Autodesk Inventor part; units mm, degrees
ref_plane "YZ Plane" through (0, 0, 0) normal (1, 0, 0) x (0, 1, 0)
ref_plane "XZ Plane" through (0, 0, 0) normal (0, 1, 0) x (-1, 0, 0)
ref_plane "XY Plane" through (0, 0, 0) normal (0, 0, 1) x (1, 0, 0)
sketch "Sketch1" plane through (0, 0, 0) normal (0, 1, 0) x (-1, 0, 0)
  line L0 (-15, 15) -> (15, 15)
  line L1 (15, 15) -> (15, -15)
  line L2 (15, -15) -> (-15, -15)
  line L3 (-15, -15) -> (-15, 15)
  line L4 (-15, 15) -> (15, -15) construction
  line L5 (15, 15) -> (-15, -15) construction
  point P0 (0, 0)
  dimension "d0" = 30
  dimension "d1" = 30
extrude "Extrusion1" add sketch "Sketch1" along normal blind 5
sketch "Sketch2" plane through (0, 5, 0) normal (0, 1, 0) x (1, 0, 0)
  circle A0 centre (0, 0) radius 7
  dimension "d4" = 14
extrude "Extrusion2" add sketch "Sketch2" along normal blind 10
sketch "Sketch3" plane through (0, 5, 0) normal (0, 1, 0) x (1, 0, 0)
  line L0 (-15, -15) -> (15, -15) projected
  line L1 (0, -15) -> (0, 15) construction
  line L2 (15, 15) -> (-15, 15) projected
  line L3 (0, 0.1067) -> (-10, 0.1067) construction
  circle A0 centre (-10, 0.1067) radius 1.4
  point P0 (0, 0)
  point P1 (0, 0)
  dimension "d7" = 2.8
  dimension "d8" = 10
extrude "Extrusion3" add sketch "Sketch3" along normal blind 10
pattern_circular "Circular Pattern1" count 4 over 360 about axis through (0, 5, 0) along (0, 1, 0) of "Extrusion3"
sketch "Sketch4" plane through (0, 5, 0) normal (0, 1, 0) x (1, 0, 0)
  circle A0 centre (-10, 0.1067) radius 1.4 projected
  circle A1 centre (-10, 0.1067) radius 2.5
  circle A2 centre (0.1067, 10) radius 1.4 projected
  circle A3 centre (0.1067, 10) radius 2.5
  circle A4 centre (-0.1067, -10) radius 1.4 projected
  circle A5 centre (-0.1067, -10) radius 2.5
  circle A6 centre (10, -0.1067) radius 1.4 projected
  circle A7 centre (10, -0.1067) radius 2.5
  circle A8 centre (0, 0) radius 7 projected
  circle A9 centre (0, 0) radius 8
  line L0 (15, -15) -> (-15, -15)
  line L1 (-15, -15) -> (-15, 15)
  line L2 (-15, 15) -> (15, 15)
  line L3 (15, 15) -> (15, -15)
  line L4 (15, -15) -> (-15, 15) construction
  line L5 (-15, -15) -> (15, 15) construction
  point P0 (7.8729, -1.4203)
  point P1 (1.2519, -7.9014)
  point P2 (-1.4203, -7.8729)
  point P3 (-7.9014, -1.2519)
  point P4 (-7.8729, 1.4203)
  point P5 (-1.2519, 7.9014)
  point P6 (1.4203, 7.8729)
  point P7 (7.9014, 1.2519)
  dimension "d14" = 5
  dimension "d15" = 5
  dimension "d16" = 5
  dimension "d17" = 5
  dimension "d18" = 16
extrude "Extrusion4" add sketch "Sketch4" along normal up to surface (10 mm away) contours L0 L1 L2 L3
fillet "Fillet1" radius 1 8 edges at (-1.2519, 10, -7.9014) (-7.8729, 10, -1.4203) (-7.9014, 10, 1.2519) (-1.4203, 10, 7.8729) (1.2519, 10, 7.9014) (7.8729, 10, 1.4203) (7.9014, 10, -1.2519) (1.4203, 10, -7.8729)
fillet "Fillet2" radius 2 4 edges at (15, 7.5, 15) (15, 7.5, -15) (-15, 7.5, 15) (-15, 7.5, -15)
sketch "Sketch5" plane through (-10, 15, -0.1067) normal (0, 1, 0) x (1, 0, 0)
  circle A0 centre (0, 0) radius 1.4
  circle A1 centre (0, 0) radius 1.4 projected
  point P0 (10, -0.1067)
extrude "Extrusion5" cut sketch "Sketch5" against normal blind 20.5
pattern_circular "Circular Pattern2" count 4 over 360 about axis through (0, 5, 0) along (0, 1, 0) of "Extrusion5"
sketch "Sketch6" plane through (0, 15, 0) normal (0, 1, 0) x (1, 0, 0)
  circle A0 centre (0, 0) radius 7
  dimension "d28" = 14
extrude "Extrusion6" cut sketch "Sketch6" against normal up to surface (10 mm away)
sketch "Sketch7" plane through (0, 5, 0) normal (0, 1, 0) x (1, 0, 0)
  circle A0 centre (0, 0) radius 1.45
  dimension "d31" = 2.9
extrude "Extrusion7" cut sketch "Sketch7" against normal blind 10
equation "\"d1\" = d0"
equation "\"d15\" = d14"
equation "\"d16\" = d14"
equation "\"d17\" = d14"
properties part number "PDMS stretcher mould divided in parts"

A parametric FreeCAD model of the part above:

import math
import FreeCAD as App
import Part
import Sketcher
Q = App.Units.Quantity


def edges_at(feature, points):
    """Names of the edges that pass closest to the given points."""
    edges = feature.Shape.Edges
    near = lambda p: min(range(len(edges)), key=lambda i: edges[i].distToShape(Part.Vertex(*p))[0])
    return sorted({f"Edge{near(p) + 1}" for p in points})


def add_polygon(sketch, points):
    """Adds a closed chain of lines whose ends are joined by coincident constraints."""
    first, n = sketch.GeometryCount, len(points)
    for a, b in zip(points, points[1:] + points[:1]):
        sketch.addGeometry(Part.LineSegment(App.Vector(*a, 0), App.Vector(*b, 0)), False)
    for i in range(n):
        sketch.addConstraint(Sketcher.Constraint("Coincident", first + i, 2, first + (i + 1) % n, 1))

doc = App.newDocument("Part")
body = doc.addObject("PartDesign::Body", "Body")

# Sketch on XZ plane
sketch1 = doc.addObject("Sketcher::SketchObject", "Sketch")
body.addObject(sketch1)
sketch1.AttachmentSupport = (doc.XZ_Plane, [""])
sketch1.MapMode = "FlatFace"
add_polygon(sketch1, [(-15, 15), (15, 15), (15, -15), (-15, -15)])  # lines 0-3
sketch1.addConstraint([
    Sketcher.Constraint("Horizontal", 0),
    Sketcher.Constraint("Vertical", 1),
    Sketcher.Constraint("Horizontal", 2),
    Sketcher.Constraint("Vertical", 3),
    Sketcher.Constraint("Symmetric", 0, 2, 2, 2, -1, 1),
    Sketcher.Constraint("Equal", 2, 1),
    Sketcher.Constraint("DistanceX", 0, 1, 0, 2, Q("30 mm")),
])
pad1 = doc.addObject("PartDesign::Pad", "Pad")
body.addObject(pad1)
pad1.Profile = sketch1
pad1.Length = 5
pad1.Reversed = True

# Sketch on XZ plane
sketch2 = doc.addObject("Sketcher::SketchObject", "Sketch001")
body.addObject(sketch2)
sketch2.AttachmentSupport = (doc.XZ_Plane, [""])
sketch2.MapMode = "FlatFace"
sketch2.AttachmentOffset = App.Placement(App.Vector(0, 0, -5), App.Rotation())
sketch2.addGeometry(Part.Circle(App.Vector(0, 0, 0), App.Vector(0, 0, 1), 7), False)
sketch2.addConstraint([
    Sketcher.Constraint("Coincident", 0, 3, -1, 1),
    Sketcher.Constraint("Diameter", 0, Q("14 mm")),
])
pad2 = doc.addObject("PartDesign::Pad", "Pad001")
body.addObject(pad2)
pad2.Profile = sketch2
pad2.Length = 10
pad2.Reversed = True

# Sketch on XZ plane
sketch3 = doc.addObject("Sketcher::SketchObject", "Sketch002")
body.addObject(sketch3)
sketch3.AttachmentSupport = (doc.XZ_Plane, [""])
sketch3.MapMode = "FlatFace"
sketch3.AttachmentOffset = App.Placement(App.Vector(0, 0, -5), App.Rotation())
sketch3.addGeometry(Part.Circle(App.Vector(-10, -0.1, 0), App.Vector(0, 0, 1), 1.4), False)
sketch3.addConstraint([
    Sketcher.Constraint("Diameter", 0, Q("2.8 mm")),
    Sketcher.Constraint("DistanceX", 0, 3, -1, 1, Q("10 mm")),
    Sketcher.Constraint("DistanceY", 0, 3, -1, 1, Q("0.1067 mm")),
])
pad3 = doc.addObject("PartDesign::Pad", "Pad002")
body.addObject(pad3)
pad3.Profile = sketch3
pad3.Length = 10
pad3.Reversed = True
doc.recompute()

polarpattern = doc.addObject("PartDesign::PolarPattern", "PolarPattern")
body.addObject(polarpattern)
polarpattern.Originals = [pad3]
polarpattern.Axis = (doc.Y_Axis, [""])
polarpattern.Angle = 360
polarpattern.Occurrences = 4
body.Tip = polarpattern

# Sketch on XZ plane
sketch4 = doc.addObject("Sketcher::SketchObject", "Sketch003")
body.addObject(sketch4)
sketch4.AttachmentSupport = (doc.XZ_Plane, [""])
sketch4.MapMode = "FlatFace"
sketch4.AttachmentOffset = App.Placement(App.Vector(0, 0, -5), App.Rotation())
add_polygon(sketch4, [(-15, 15), (15, 15), (15, -15), (-15, -15)])  # lines 0-3
sketch4.addGeometry(Part.ArcOfCircle(Part.Circle(App.Vector(-10, -0.1, 0), App.Vector(0, 0, 1), 2.5), math.radians(33), math.radians(328)), False)  # 4
sketch4.addGeometry(Part.ArcOfCircle(Part.Circle(App.Vector(0, 0, 0), App.Vector(0, 0, 1), 8), math.radians(-170), math.radians(-99)), False)  # 5
sketch4.addGeometry(Part.ArcOfCircle(Part.Circle(App.Vector(0.1, -10, 0), App.Vector(0, 0, 1), 2.5), math.radians(123), math.radians(418)), False)  # 6
sketch4.addGeometry(Part.ArcOfCircle(Part.Circle(App.Vector(0, 0, 0), App.Vector(0, 0, 1), 8), math.radians(-80), math.radians(-9)), False)  # 7
sketch4.addGeometry(Part.ArcOfCircle(Part.Circle(App.Vector(10, 0.1, 0), App.Vector(0, 0, 1), 2.5), math.radians(-147), math.radians(148)), False)  # 8
sketch4.addGeometry(Part.ArcOfCircle(Part.Circle(App.Vector(0, 0, 0), App.Vector(0, 0, 1), 8), math.radians(10), math.radians(81)), False)  # 9
sketch4.addGeometry(Part.ArcOfCircle(Part.Circle(App.Vector(-0.1, 10, 0), App.Vector(0, 0, 1), 2.5), math.radians(-57), math.radians(238)), False)  # 10
sketch4.addGeometry(Part.ArcOfCircle(Part.Circle(App.Vector(0, 0, 0), App.Vector(0, 0, 1), 8), math.radians(100), math.radians(171)), False)  # 11
sketch4.addConstraint([
    Sketcher.Constraint("Coincident", 4, 2, 5, 1),
    Sketcher.Constraint("Coincident", 5, 2, 6, 1),
    Sketcher.Constraint("Coincident", 6, 2, 7, 1),
    Sketcher.Constraint("Coincident", 7, 2, 8, 1),
    Sketcher.Constraint("Coincident", 8, 2, 9, 1),
    Sketcher.Constraint("Coincident", 9, 2, 10, 1),
    Sketcher.Constraint("Coincident", 10, 2, 11, 1),
    Sketcher.Constraint("Coincident", 11, 2, 4, 1),
    Sketcher.Constraint("Horizontal", 0),
    Sketcher.Constraint("Vertical", 1),
    Sketcher.Constraint("Horizontal", 2),
    Sketcher.Constraint("Vertical", 3),
    Sketcher.Constraint("Coincident", 5, 3, -1, 1),
    Sketcher.Constraint("Coincident", 7, 3, -1, 1),
    Sketcher.Constraint("Coincident", 9, 3, -1, 1),
    Sketcher.Constraint("Coincident", 11, 3, -1, 1),
    Sketcher.Constraint("Equal", 4, 6),
    Sketcher.Constraint("Equal", 5, 7),
    Sketcher.Constraint("Equal", 6, 8),
    Sketcher.Constraint("Equal", 7, 9),
    Sketcher.Constraint("Equal", 8, 10),
    Sketcher.Constraint("Equal", 9, 11),
    Sketcher.Constraint("Symmetric", 4, 3, 8, 3, -1, 1),
    Sketcher.Constraint("Symmetric", 6, 3, 10, 3, -1, 1),
    Sketcher.Constraint("Symmetric", 0, 2, 2, 2, -1, 1),
    Sketcher.Constraint("Equal", 2, 1),
    Sketcher.Constraint("Radius", 5, Q("8 mm")),
    Sketcher.Constraint("Radius", 4, Q("2.5 mm")),
    Sketcher.Constraint("DistanceX", 8, 3, 0, 2, Q("5 mm")),
    Sketcher.Constraint("DistanceY", 10, 3, 0, 2, Q("5 mm")),
    Sketcher.Constraint("DistanceX", 0, 1, 0, 2, Q("30 mm")),
    Sketcher.Constraint("DistanceX", 4, 2, -1, 1, Q("7.873 mm")),
    Sketcher.Constraint("DistanceX", 5, 2, -1, 1, Q("1.252 mm")),
])
pad4 = doc.addObject("PartDesign::Pad", "Pad003")
body.addObject(pad4)
pad4.Profile = sketch4
pad4.Length = 10
pad4.Reversed = True
doc.recompute()

fillet = doc.addObject("PartDesign::Fillet", "Fillet")
body.addObject(fillet)
fillet.Base = (pad4, edges_at(pad4, [
    (-1.252, 10, -7.901),
    (-7.873, 10, -1.42),
    (-7.901, 10, 1.252),
    (-1.42, 10, 7.873),
    (1.252, 10, 7.901),
    (7.873, 10, 1.42),
    (7.901, 10, -1.252),
    (1.42, 10, -7.873),
]))
fillet.Radius = 1
doc.recompute()

fillet2 = doc.addObject("PartDesign::Fillet", "Fillet001")
body.addObject(fillet2)
fillet2.Base = (fillet, edges_at(fillet, [
    (15, 7.5, 15),
    (15, 7.5, -15),
    (-15, 7.5, 15),
    (-15, 7.5, -15),
]))
fillet2.Radius = 2

# Sketch on XZ plane
sketch5 = doc.addObject("Sketcher::SketchObject", "Sketch004")
body.addObject(sketch5)
sketch5.AttachmentSupport = (doc.XZ_Plane, [""])
sketch5.MapMode = "FlatFace"
sketch5.AttachmentOffset = App.Placement(App.Vector(0, 0, -15), App.Rotation())
sketch5.addGeometry(Part.Circle(App.Vector(-10, -0.1, 0), App.Vector(0, 0, 1), 1.4), False)
sketch5.addConstraint([
    Sketcher.Constraint("Diameter", 0, Q("2.8 mm")),
    Sketcher.Constraint("DistanceX", 0, 3, -1, 1, Q("10 mm")),
    Sketcher.Constraint("DistanceY", 0, 3, -1, 1, Q("0.1067 mm")),
])
pocket1 = doc.addObject("PartDesign::Pocket", "Pocket")
body.addObject(pocket1)
pocket1.Profile = sketch5
pocket1.Length = 20.5
pocket1.Reversed = True
doc.recompute()

polarpattern2 = doc.addObject("PartDesign::PolarPattern", "PolarPattern001")
body.addObject(polarpattern2)
polarpattern2.Originals = [pocket1]
polarpattern2.Axis = (doc.Y_Axis, [""])
polarpattern2.Angle = 360
polarpattern2.Occurrences = 4
body.Tip = polarpattern2

# Sketch on XZ plane
sketch6 = doc.addObject("Sketcher::SketchObject", "Sketch005")
body.addObject(sketch6)
sketch6.AttachmentSupport = (doc.XZ_Plane, [""])
sketch6.MapMode = "FlatFace"
sketch6.AttachmentOffset = App.Placement(App.Vector(0, 0, -15), App.Rotation())
sketch6.addGeometry(Part.Circle(App.Vector(0, 0, 0), App.Vector(0, 0, 1), 7), False)
sketch6.addConstraint([
    Sketcher.Constraint("Coincident", 0, 3, -1, 1),
    Sketcher.Constraint("Diameter", 0, Q("14 mm")),
])
pocket2 = doc.addObject("PartDesign::Pocket", "Pocket001")
body.addObject(pocket2)
pocket2.Profile = sketch6
pocket2.Length = 10
pocket2.Reversed = True

# Sketch on XZ plane
sketch7 = doc.addObject("Sketcher::SketchObject", "Sketch006")
body.addObject(sketch7)
sketch7.AttachmentSupport = (doc.XZ_Plane, [""])
sketch7.MapMode = "FlatFace"
sketch7.AttachmentOffset = App.Placement(App.Vector(0, 0, -5), App.Rotation())
sketch7.addGeometry(Part.Circle(App.Vector(0, 0, 0), App.Vector(0, 0, 1), 1.4), False)
sketch7.addConstraint([
    Sketcher.Constraint("Coincident", 0, 3, -1, 1),
    Sketcher.Constraint("Diameter", 0, Q("2.9 mm")),
])
pocket3 = doc.addObject("PartDesign::Pocket", "Pocket002")
body.addObject(pocket3)
pocket3.Profile = sketch7
pocket3.Length = 10
pocket3.Reversed = True

doc.recompute()
